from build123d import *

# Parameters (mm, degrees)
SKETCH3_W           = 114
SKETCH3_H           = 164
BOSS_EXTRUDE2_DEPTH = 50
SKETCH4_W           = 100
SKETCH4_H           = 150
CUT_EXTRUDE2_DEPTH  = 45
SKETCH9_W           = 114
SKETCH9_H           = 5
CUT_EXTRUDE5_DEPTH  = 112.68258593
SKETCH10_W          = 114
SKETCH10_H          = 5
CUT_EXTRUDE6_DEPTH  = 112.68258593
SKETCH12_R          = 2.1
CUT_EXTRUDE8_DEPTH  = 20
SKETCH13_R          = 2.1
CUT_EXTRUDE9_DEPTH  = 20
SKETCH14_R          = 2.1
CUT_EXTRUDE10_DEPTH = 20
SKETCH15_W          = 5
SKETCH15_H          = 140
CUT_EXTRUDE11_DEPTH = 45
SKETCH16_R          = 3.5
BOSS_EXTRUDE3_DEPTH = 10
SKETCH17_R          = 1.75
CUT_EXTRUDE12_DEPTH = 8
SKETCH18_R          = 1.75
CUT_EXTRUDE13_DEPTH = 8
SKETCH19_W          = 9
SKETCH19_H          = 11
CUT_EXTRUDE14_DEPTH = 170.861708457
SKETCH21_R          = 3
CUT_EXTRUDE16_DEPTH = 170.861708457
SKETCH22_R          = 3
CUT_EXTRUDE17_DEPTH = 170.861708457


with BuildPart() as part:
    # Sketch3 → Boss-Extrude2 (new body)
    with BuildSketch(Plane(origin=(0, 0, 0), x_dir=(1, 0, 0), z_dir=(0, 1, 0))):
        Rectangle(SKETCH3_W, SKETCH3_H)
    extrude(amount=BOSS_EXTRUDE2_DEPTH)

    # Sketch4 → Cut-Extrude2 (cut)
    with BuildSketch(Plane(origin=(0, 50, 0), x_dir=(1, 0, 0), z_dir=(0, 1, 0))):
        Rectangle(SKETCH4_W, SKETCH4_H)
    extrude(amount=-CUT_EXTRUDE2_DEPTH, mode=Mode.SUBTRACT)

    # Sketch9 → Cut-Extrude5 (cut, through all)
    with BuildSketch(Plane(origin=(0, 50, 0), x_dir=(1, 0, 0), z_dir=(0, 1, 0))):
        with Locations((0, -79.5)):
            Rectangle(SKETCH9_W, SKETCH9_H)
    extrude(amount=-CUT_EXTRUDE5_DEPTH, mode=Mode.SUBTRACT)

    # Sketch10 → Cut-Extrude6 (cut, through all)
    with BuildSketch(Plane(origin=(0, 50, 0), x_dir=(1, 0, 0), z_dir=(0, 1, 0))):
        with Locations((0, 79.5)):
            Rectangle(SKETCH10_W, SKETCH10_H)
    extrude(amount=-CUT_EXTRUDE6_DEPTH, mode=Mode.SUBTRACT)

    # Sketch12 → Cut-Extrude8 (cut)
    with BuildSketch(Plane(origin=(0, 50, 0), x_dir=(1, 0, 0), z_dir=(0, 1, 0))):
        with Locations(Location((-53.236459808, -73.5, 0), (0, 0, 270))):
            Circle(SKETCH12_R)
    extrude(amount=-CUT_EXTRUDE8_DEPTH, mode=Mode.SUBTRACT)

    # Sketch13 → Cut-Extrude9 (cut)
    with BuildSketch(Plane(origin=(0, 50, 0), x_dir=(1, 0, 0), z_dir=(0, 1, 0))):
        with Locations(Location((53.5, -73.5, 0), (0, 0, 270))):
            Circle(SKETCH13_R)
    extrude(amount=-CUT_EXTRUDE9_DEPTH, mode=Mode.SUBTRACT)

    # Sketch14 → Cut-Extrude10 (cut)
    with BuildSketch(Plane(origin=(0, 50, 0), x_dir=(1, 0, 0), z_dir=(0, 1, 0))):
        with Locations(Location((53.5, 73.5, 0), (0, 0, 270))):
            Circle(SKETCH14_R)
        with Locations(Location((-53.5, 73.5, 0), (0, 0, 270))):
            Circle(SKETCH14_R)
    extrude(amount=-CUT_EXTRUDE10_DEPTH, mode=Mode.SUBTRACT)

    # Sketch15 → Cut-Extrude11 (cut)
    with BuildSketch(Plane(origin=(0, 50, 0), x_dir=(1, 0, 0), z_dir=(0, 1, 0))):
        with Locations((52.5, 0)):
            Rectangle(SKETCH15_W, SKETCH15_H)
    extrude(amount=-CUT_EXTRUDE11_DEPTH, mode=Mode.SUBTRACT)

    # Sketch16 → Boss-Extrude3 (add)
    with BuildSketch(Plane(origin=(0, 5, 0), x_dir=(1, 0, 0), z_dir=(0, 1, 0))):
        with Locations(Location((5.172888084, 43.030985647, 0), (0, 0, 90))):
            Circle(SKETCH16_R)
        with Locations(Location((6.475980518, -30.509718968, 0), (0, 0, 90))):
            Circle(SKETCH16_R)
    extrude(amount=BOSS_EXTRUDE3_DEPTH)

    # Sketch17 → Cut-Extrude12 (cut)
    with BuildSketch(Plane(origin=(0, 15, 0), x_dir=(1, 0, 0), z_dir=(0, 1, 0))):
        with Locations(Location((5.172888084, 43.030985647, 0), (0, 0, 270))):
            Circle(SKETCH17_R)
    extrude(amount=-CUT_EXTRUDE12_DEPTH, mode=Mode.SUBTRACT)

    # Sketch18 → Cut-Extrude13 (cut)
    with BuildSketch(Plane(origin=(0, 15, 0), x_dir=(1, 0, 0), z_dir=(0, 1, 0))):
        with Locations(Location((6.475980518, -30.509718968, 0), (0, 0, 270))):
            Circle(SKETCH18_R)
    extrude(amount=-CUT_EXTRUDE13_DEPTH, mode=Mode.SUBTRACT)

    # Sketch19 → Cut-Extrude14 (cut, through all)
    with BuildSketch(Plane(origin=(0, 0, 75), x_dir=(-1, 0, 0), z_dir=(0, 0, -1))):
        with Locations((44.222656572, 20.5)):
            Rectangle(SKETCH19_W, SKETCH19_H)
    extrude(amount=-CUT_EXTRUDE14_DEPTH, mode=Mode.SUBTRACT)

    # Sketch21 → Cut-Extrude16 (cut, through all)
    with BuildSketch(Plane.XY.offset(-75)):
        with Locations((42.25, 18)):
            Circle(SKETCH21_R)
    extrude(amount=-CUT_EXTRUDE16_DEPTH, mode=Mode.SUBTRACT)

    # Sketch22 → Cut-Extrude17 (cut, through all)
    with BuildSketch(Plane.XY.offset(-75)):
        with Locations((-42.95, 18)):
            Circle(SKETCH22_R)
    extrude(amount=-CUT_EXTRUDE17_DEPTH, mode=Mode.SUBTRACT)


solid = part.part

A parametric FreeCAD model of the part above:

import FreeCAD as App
import Part
import Sketcher
from FreeCAD import Vector
Q = App.Units.Quantity


def add_polygon(sketch, points):
    """Adds a closed chain of lines whose ends are joined by coincident constraints."""
    first, n = sketch.GeometryCount, len(points)
    for a, b in zip(points, points[1:] + points[:1]):
        sketch.addGeometry(Part.LineSegment(App.Vector(*a, 0), App.Vector(*b, 0)), False)
    for i in range(n):
        sketch.addConstraint(Sketcher.Constraint("Coincident", first + i, 2, first + (i + 1) % n, 1))

doc = App.newDocument("Part")
params = doc.addObject("Spreadsheet::Sheet", "Params")
for row, (alias, value) in enumerate([
    ("sketch1_width", "114 mm"),
    ("sketch1_height", "164 mm"),
    ("pad1_length", "50 mm"),
    ("sketch2_width", "100 mm"),
    ("sketch2_height", "150 mm"),
    ("pocket1_length", "45 mm"),
    ("sketch3_width", "114 mm"),
    ("sketch3_height", "5 mm"),
    ("sketch4_width", "114 mm"),
    ("sketch4_height", "5 mm"),
    ("sketch5_diameter", "4.2 mm"),
    ("pocket4_length", "20 mm"),
    ("sketch6_diameter", "4.2 mm"),
    ("pocket5_length", "20 mm"),
    ("sketch7_diameter", "4.2 mm"),
    ("pocket6_length", "20 mm"),
    ("sketch8_width", "5 mm"),
    ("sketch8_height", "140 mm"),
    ("pocket7_length", "45 mm"),
    ("sketch9_diameter", "7 mm"),
    ("pad2_length", "10 mm"),
    ("sketch10_diameter", "3.5 mm"),
    ("pocket8_length", "8 mm"),
    ("sketch11_diameter", "3.5 mm"),
    ("pocket9_length", "8 mm"),
    ("sketch12_width", "9 mm"),
    ("sketch12_height", "11 mm"),
    ("sketch13_diameter", "6 mm"),
    ("sketch14_diameter", "6 mm"),
], start=1):
    params.set(f"A{row}", alias)
    params.set(f"B{row}", "=" + value)
    params.setAlias(f"B{row}", alias)

body = doc.addObject("PartDesign::Body", "Body")

# Sketch on XZ plane
sketch1 = doc.addObject("Sketcher::SketchObject", "Sketch")
body.addObject(sketch1)
sketch1.AttachmentSupport = (doc.XZ_Plane, [""])
sketch1.MapMode = "FlatFace"
add_polygon(sketch1, [(-57, -82), (-57, 82), (57, 82), (57, -82)])  # lines 0-3
sketch1.addConstraint(Sketcher.Constraint("Vertical", 0))
sketch1.addConstraint(Sketcher.Constraint("Horizontal", 1))
sketch1.addConstraint(Sketcher.Constraint("Vertical", 2))
sketch1.addConstraint(Sketcher.Constraint("Horizontal", 3))
sketch1.addConstraint(Sketcher.Constraint("Symmetric", 0, 2, 2, 2, -1, 1))
sketch1.addConstraint(Sketcher.Constraint("DistanceX", 1, 1, 1, 2, Q("114 mm")))
sketch1.addConstraint(Sketcher.Constraint("DistanceY", 0, 1, 0, 2, Q("164 mm")))
sketch1.setExpression("Constraints[9]", "Params.sketch1_width")
sketch1.setExpression("Constraints[10]", "Params.sketch1_height")
pad1 = doc.addObject("PartDesign::Pad", "Pad")
body.addObject(pad1)
pad1.Profile = sketch1
pad1.setExpression("Length", "Params.pad1_length")
pad1.Reversed = True

# Sketch on XZ plane
sketch2 = doc.addObject("Sketcher::SketchObject", "Sketch001")
body.addObject(sketch2)
sketch2.AttachmentSupport = (doc.XZ_Plane, [""])
sketch2.MapMode = "FlatFace"
sketch2.AttachmentOffset = App.Placement(Vector(0, 0, -50), App.Rotation())
add_polygon(sketch2, [(-50, -75), (-50, 75), (50, 75), (50, -75)])  # lines 0-3
sketch2.addConstraint(Sketcher.Constraint("Vertical", 0))
sketch2.addConstraint(Sketcher.Constraint("Horizontal", 1))
sketch2.addConstraint(Sketcher.Constraint("Vertical", 2))
sketch2.addConstraint(Sketcher.Constraint("Horizontal", 3))
sketch2.addConstraint(Sketcher.Constraint("Symmetric", 0, 2, 2, 2, -1, 1))
sketch2.addConstraint(Sketcher.Constraint("DistanceX", 1, 1, 1, 2, Q("100 mm")))
sketch2.addConstraint(Sketcher.Constraint("DistanceY", 0, 1, 0, 2, Q("150 mm")))
sketch2.setExpression("Constraints[9]", "Params.sketch2_width")
sketch2.setExpression("Constraints[10]", "Params.sketch2_height")
pocket1 = doc.addObject("PartDesign::Pocket", "Pocket")
body.addObject(pocket1)
pocket1.Profile = sketch2
pocket1.setExpression("Length", "Params.pocket1_length")
pocket1.Reversed = True

# Sketch on XZ plane
sketch3 = doc.addObject("Sketcher::SketchObject", "Sketch002")
body.addObject(sketch3)
sketch3.AttachmentSupport = (doc.XZ_Plane, [""])
sketch3.MapMode = "FlatFace"
sketch3.AttachmentOffset = App.Placement(Vector(0, 0, -50), App.Rotation())
add_polygon(sketch3, [(-57, 77), (-57, 82), (57, 82), (57, 77)])  # lines 0-3
sketch3.addConstraint(Sketcher.Constraint("Vertical", 0))
sketch3.addConstraint(Sketcher.Constraint("Horizontal", 1))
sketch3.addConstraint(Sketcher.Constraint("Vertical", 2))
sketch3.addConstraint(Sketcher.Constraint("Horizontal", 3))
sketch3.addConstraint(Sketcher.Constraint("DistanceX", 1, 1, 1, 2, Q("114 mm")))
sketch3.addConstraint(Sketcher.Constraint("DistanceY", 0, 1, 0, 2, Q("5 mm")))
sketch3.addConstraint(Sketcher.Constraint("DistanceX", 0, 2, -1, 1, Q("57 mm")))
sketch3.addConstraint(Sketcher.Constraint("DistanceY", -1, 1, 0, 2, Q("82 mm")))
sketch3.setExpression("Constraints[8]", "Params.sketch3_width")
sketch3.setExpression("Constraints[9]", "Params.sketch3_height")
pocket2 = doc.addObject("PartDesign::Pocket", "Pocket001")
body.addObject(pocket2)
pocket2.Profile = sketch3
pocket2.Type = "ThroughAll"
pocket2.Reversed = True

# Sketch on XZ plane
sketch4 = doc.addObject("Sketcher::SketchObject", "Sketch003")
body.addObject(sketch4)
sketch4.AttachmentSupport = (doc.XZ_Plane, [""])
sketch4.MapMode = "FlatFace"
sketch4.AttachmentOffset = App.Placement(Vector(0, 0, -50), App.Rotation())
add_polygon(sketch4, [(-57, -82), (-57, -77), (57, -77), (57, -82)])  # lines 0-3
sketch4.addConstraint(Sketcher.Constraint("Vertical", 0))
sketch4.addConstraint(Sketcher.Constraint("Horizontal", 1))
sketch4.addConstraint(Sketcher.Constraint("Vertical", 2))
sketch4.addConstraint(Sketcher.Constraint("Horizontal", 3))
sketch4.addConstraint(Sketcher.Constraint("DistanceX", 1, 1, 1, 2, Q("114 mm")))
sketch4.addConstraint(Sketcher.Constraint("DistanceY", 0, 1, 0, 2, Q("5 mm")))
sketch4.addConstraint(Sketcher.Constraint("DistanceX", 0, 2, -1, 1, Q("57 mm")))
sketch4.addConstraint(Sketcher.Constraint("DistanceY", 0, 2, -1, 1, Q("77 mm")))
sketch4.setExpression("Constraints[8]", "Params.sketch4_width")
sketch4.setExpression("Constraints[9]", "Params.sketch4_height")
pocket3 = doc.addObject("PartDesign::Pocket", "Pocket002")
body.addObject(pocket3)
pocket3.Profile = sketch4
pocket3.Type = "ThroughAll"
pocket3.Reversed = True

# Sketch on XZ plane
sketch5 = doc.addObject("Sketcher::SketchObject", "Sketch004")
body.addObject(sketch5)
sketch5.AttachmentSupport = (doc.XZ_Plane, [""])
sketch5.MapMode = "FlatFace"
sketch5.AttachmentOffset = App.Placement(Vector(0, 0, -50), App.Rotation())
sketch5.addGeometry(Part.Circle(Vector(-53.2, 73.5, 0), Vector(0, 0, 1), 2.1), False)
sketch5.addConstraint(Sketcher.Constraint("Diameter", 0, Q("4.2 mm")))
sketch5.addConstraint(Sketcher.Constraint("DistanceY", -1, 1, 0, 3, Q("73.5 mm")))
sketch5.addConstraint(Sketcher.Constraint("DistanceX", 0, 3, -1, 1, Q("53.23646 mm")))
sketch5.setExpression("Constraints[0]", "Params.sketch5_diameter")
pocket4 = doc.addObject("PartDesign::Pocket", "Pocket003")
body.addObject(pocket4)
pocket4.Profile = sketch5
pocket4.setExpression("Length", "Params.pocket4_length")
pocket4.Reversed = True

# Sketch on XZ plane
sketch6 = doc.addObject("Sketcher::SketchObject", "Sketch005")
body.addObject(sketch6)
sketch6.AttachmentSupport = (doc.XZ_Plane, [""])
sketch6.MapMode = "FlatFace"
sketch6.AttachmentOffset = App.Placement(Vector(0, 0, -50), App.Rotation())
sketch6.addGeometry(Part.Circle(Vector(53.5, 73.5, 0), Vector(0, 0, 1), 2.1), False)
sketch6.addConstraint(Sketcher.Constraint("Diameter", 0, Q("4.2 mm")))
sketch6.addConstraint(Sketcher.Constraint("DistanceX", -1, 1, 0, 3, Q("53.5 mm")))
sketch6.addConstraint(Sketcher.Constraint("DistanceY", -1, 1, 0, 3, Q("73.5 mm")))
sketch6.setExpression("Constraints[0]", "Params.sketch6_diameter")
pocket5 = doc.addObject("PartDesign::Pocket", "Pocket004")
body.addObject(pocket5)
pocket5.Profile = sketch6
pocket5.setExpression("Length", "Params.pocket5_length")
pocket5.Reversed = True

# Sketch on XZ plane
sketch7 = doc.addObject("Sketcher::SketchObject", "Sketch006")
body.addObject(sketch7)
sketch7.AttachmentSupport = (doc.XZ_Plane, [""])
sketch7.MapMode = "FlatFace"
sketch7.AttachmentOffset = App.Placement(Vector(0, 0, -50), App.Rotation())
sketch7.addGeometry(Part.Circle(Vector(53.5, -73.5, 0), Vector(0, 0, 1), 2.1), False)
sketch7.addGeometry(Part.Circle(Vector(-53.5, -73.5, 0), Vector(0, 0, 1), 2.1), False)
sketch7.addConstraint(Sketcher.Constraint("Equal", 0, 1))
sketch7.addConstraint(Sketcher.Constraint("Symmetric", 0, 3, 1, 3, -2))
sketch7.addConstraint(Sketcher.Constraint("Diameter", 0, Q("4.2 mm")))
sketch7.addConstraint(Sketcher.Constraint("DistanceX", 1, 3, 0, 3, Q("107 mm")))
sketch7.addConstraint(Sketcher.Constraint("DistanceY", 0, 3, -1, 1, Q("73.5 mm")))
sketch7.setExpression("Constraints[2]", "Params.sketch7_diameter")
pocket6 = doc.addObject("PartDesign::Pocket", "Pocket005")
body.addObject(pocket6)
pocket6.Profile = sketch7
pocket6.setExpression("Length", "Params.pocket6_length")
pocket6.Reversed = True

# Sketch on XZ plane
sketch8 = doc.addObject("Sketcher::SketchObject", "Sketch007")
body.addObject(sketch8)
sketch8.AttachmentSupport = (doc.XZ_Plane, [""])
sketch8.MapMode = "FlatFace"
sketch8.AttachmentOffset = App.Placement(Vector(0, 0, -50), App.Rotation())
add_polygon(sketch8, [(50, -70), (50, 70), (55, 70), (55, -70)])  # lines 0-3
sketch8.addConstraint(Sketcher.Constraint("Vertical", 0))
sketch8.addConstraint(Sketcher.Constraint("Horizontal", 1))
sketch8.addConstraint(Sketcher.Constraint("Vertical", 2))
sketch8.addConstraint(Sketcher.Constraint("Horizontal", 3))
sketch8.addConstraint(Sketcher.Constraint("DistanceX", 1, 1, 1, 2, Q("5 mm")))
sketch8.addConstraint(Sketcher.Constraint("DistanceY", 0, 1, 0, 2, Q("140 mm")))
sketch8.addConstraint(Sketcher.Constraint("DistanceX", -1, 1, 0, 2, Q("50 mm")))
sketch8.addConstraint(Sketcher.Constraint("DistanceY", -1, 1, 0, 2, Q("70 mm")))
sketch8.setExpression("Constraints[8]", "Params.sketch8_width")
sketch8.setExpression("Constraints[9]", "Params.sketch8_height")
pocket7 = doc.addObject("PartDesign::Pocket", "Pocket006")
body.addObject(pocket7)
pocket7.Profile = sketch8
pocket7.setExpression("Length", "Params.pocket7_length")
pocket7.Reversed = True

# Sketch on XZ plane
sketch9 = doc.addObject("Sketcher::SketchObject", "Sketch008")
body.addObject(sketch9)
sketch9.AttachmentSupport = (doc.XZ_Plane, [""])
sketch9.MapMode = "FlatFace"
sketch9.AttachmentOffset = App.Placement(Vector(0, 0, -5), App.Rotation())
sketch9.addGeometry(Part.Circle(Vector(5.2, -43, 0), Vector(0, 0, 1), 3.5), False)
sketch9.addGeometry(Part.Circle(Vector(6.5, 30.5, 0), Vector(0, 0, 1), 3.5), False)
sketch9.addConstraint(Sketcher.Constraint("Equal", 0, 1))
sketch9.addConstraint(Sketcher.Constraint("Diameter", 0, Q("7 mm")))
sketch9.addConstraint(Sketcher.Constraint("DistanceX", -1, 1, 0, 3, Q("5.172888 mm")))
sketch9.addConstraint(Sketcher.Constraint("DistanceX", -1, 1, 1, 3, Q("6.475981 mm")))
sketch9.addConstraint(Sketcher.Constraint("DistanceY", -1, 1, 1, 3, Q("30.509719 mm")))
sketch9.addConstraint(Sketcher.Constraint("DistanceY", 0, 3, -1, 1, Q("43.030986 mm")))
sketch9.setExpression("Constraints[1]", "Params.sketch9_diameter")
pad2 = doc.addObject("PartDesign::Pad", "Pad001")
body.addObject(pad2)
pad2.Profile = sketch9
pad2.setExpression("Length", "Params.pad2_length")
pad2.Reversed = True

# Sketch on XZ plane
sketch10 = doc.addObject("Sketcher::SketchObject", "Sketch009")
body.addObject(sketch10)
sketch10.AttachmentSupport = (doc.XZ_Plane, [""])
sketch10.MapMode = "FlatFace"
sketch10.AttachmentOffset = App.Placement(Vector(0, 0, -15), App.Rotation())
sketch10.addGeometry(Part.Circle(Vector(5.2, -43, 0), Vector(0, 0, 1), 1.8), False)
sketch10.addConstraint(Sketcher.Constraint("Diameter", 0, Q("3.5 mm")))
sketch10.addConstraint(Sketcher.Constraint("DistanceX", -1, 1, 0, 3, Q("5.172888 mm")))
sketch10.addConstraint(Sketcher.Constraint("DistanceY", 0, 3, -1, 1, Q("43.030986 mm")))
sketch10.setExpression("Constraints[0]", "Params.sketch10_diameter")
pocket8 = doc.addObject("PartDesign::Pocket", "Pocket007")
body.addObject(pocket8)
pocket8.Profile = sketch10
pocket8.setExpression("Length", "Params.pocket8_length")
pocket8.Reversed = True

# Sketch on XZ plane
sketch11 = doc.addObject("Sketcher::SketchObject", "Sketch010")
body.addObject(sketch11)
sketch11.AttachmentSupport = (doc.XZ_Plane, [""])
sketch11.MapMode = "FlatFace"
sketch11.AttachmentOffset = App.Placement(Vector(0, 0, -15), App.Rotation())
sketch11.addGeometry(Part.Circle(Vector(6.5, 30.5, 0), Vector(0, 0, 1), 1.8), False)
sketch11.addConstraint(Sketcher.Constraint("Diameter", 0, Q("3.5 mm")))
sketch11.addConstraint(Sketcher.Constraint("DistanceX", -1, 1, 0, 3, Q("6.475981 mm")))
sketch11.addConstraint(Sketcher.Constraint("DistanceY", -1, 1, 0, 3, Q("30.509719 mm")))
sketch11.setExpression("Constraints[0]", "Params.sketch11_diameter")
pocket9 = doc.addObject("PartDesign::Pocket", "Pocket008")
body.addObject(pocket9)
pocket9.Profile = sketch11
pocket9.setExpression("Length", "Params.pocket9_length")
pocket9.Reversed = True

# Sketch on XY plane
sketch12 = doc.addObject("Sketcher::SketchObject", "Sketch011")
body.addObject(sketch12)
sketch12.AttachmentSupport = (doc.XY_Plane, [""])
sketch12.MapMode = "FlatFace"
sketch12.AttachmentOffset = App.Placement(Vector(0, 0, 75), App.Rotation())
add_polygon(sketch12, [(-40, 26), (-40, 15), (-49, 15), (-49, 26)])  # lines 0-3
sketch12.addConstraint(Sketcher.Constraint("Vertical", 0))
sketch12.addConstraint(Sketcher.Constraint("Horizontal", 1))
sketch12.addConstraint(Sketcher.Constraint("Vertical", 2))
sketch12.addConstraint(Sketcher.Constraint("Horizontal", 3))
sketch12.addConstraint(Sketcher.Constraint("DistanceX", 1, 2, 1, 1, Q("9 mm")))
sketch12.addConstraint(Sketcher.Constraint("DistanceY", 0, 2, 0, 1, Q("11 mm")))
sketch12.addConstraint(Sketcher.Constraint("DistanceY", -1, 1, 0, 2, Q("15 mm")))
sketch12.addConstraint(Sketcher.Constraint("DistanceX", 0, 2, -1, 1, Q("39.722657 mm")))
sketch12.setExpression("Constraints[8]", "Params.sketch12_width")
sketch12.setExpression("Constraints[9]", "Params.sketch12_height")
pocket10 = doc.addObject("PartDesign::Pocket", "Pocket009")
body.addObject(pocket10)
pocket10.Profile = sketch12
pocket10.Type = "ThroughAll"
pocket10.Reversed = True

# Sketch on XY plane
sketch13 = doc.addObject("Sketcher::SketchObject", "Sketch012")
body.addObject(sketch13)
sketch13.AttachmentSupport = (doc.XY_Plane, [""])
sketch13.MapMode = "FlatFace"
sketch13.AttachmentOffset = App.Placement(Vector(0, 0, -75), App.Rotation())
sketch13.addGeometry(Part.Circle(Vector(42.2, 18, 0), Vector(0, 0, 1), 3), False)
sketch13.addConstraint(Sketcher.Constraint("Diameter", 0, Q("6 mm")))
sketch13.addConstraint(Sketcher.Constraint("DistanceY", -1, 1, 0, 3, Q("18 mm")))
sketch13.addConstraint(Sketcher.Constraint("DistanceX", -1, 1, 0, 3, Q("42.25 mm")))
sketch13.setExpression("Constraints[0]", "Params.sketch13_diameter")
pocket11 = doc.addObject("PartDesign::Pocket", "Pocket010")
body.addObject(pocket11)
pocket11.Profile = sketch13
pocket11.Type = "ThroughAll"

# Sketch on XY plane
sketch14 = doc.addObject("Sketcher::SketchObject", "Sketch013")
body.addObject(sketch14)
sketch14.AttachmentSupport = (doc.XY_Plane, [""])
sketch14.MapMode = "FlatFace"
sketch14.AttachmentOffset = App.Placement(Vector(0, 0, -75), App.Rotation())
sketch14.addGeometry(Part.Circle(Vector(-43, 18, 0), Vector(0, 0, 1), 3), False)
sketch14.addConstraint(Sketcher.Constraint("Diameter", 0, Q("6 mm")))
sketch14.addConstraint(Sketcher.Constraint("DistanceY", -1, 1, 0, 3, Q("18 mm")))
sketch14.addConstraint(Sketcher.Constraint("DistanceX", 0, 3, -1, 1, Q("42.95 mm")))
sketch14.setExpression("Constraints[0]", "Params.sketch14_diameter")
pocket12 = doc.addObject("PartDesign::Pocket", "Pocket011")
body.addObject(pocket12)
pocket12.Profile = sketch14
pocket12.Type = "ThroughAll"

doc.recompute()
